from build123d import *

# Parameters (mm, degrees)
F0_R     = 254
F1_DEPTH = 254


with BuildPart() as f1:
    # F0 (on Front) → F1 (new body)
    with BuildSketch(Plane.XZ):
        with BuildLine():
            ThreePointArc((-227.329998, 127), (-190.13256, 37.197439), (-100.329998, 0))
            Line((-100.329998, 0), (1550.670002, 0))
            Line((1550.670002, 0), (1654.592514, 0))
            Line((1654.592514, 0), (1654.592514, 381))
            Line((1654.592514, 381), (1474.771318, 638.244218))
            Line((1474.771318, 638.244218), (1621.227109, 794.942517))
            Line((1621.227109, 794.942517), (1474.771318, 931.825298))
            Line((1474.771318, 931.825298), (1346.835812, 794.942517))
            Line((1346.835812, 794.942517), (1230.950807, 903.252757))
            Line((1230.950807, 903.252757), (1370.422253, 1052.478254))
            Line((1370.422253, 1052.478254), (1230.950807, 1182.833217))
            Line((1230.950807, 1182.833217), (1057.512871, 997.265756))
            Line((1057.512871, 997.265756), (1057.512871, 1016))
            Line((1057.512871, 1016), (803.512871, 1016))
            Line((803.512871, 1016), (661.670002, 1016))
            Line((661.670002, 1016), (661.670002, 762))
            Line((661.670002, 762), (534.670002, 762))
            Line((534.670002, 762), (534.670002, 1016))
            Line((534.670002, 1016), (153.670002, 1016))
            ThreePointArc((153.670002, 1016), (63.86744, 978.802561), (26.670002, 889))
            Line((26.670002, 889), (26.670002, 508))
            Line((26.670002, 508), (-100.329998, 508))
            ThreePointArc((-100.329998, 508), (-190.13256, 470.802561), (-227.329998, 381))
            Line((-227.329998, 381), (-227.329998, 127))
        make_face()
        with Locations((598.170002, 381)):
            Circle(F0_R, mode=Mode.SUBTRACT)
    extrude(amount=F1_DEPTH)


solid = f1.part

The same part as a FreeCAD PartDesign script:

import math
import FreeCAD as App
import Part
import Sketcher

V = App.Vector
Q = App.Units.Quantity

doc = App.newDocument("Part")
body = doc.addObject("PartDesign::Body", "Body")

# Sketch on XZ plane
sketch1 = doc.addObject("Sketcher::SketchObject", "Sketch")
body.addObject(sketch1)
sketch1.AttachmentSupport = (doc.XZ_Plane, [""])
sketch1.MapMode = "FlatFace"
sketch1.addGeometry(Part.ArcOfCircle(Part.Circle(V(-100, 127, 0), V(0, 0, 1), 127), math.radians(180), math.radians(270)), False)
sketch1.addGeometry(Part.LineSegment(V(-100, 0, 0), V(1655, 0, 0)), False)
sketch1.addGeometry(Part.LineSegment(V(1655, 0, 0), V(1655, 381, 0)), False)
sketch1.addGeometry(Part.LineSegment(V(1655, 381, 0), V(1475, 638, 0)), False)
sketch1.addGeometry(Part.LineSegment(V(1475, 638, 0), V(1621, 795, 0)), False)
sketch1.addGeometry(Part.LineSegment(V(1621, 795, 0), V(1475, 932, 0)), False)
sketch1.addGeometry(Part.LineSegment(V(1475, 932, 0), V(1347, 795, 0)), False)
sketch1.addGeometry(Part.LineSegment(V(1347, 795, 0), V(1231, 903, 0)), False)
sketch1.addGeometry(Part.LineSegment(V(1231, 903, 0), V(1370, 1052, 0)), False)
sketch1.addGeometry(Part.LineSegment(V(1370, 1052, 0), V(1231, 1183, 0)), False)
sketch1.addGeometry(Part.LineSegment(V(1231, 1183, 0), V(1058, 997, 0)), False)
sketch1.addGeometry(Part.LineSegment(V(1058, 997, 0), V(1058, 1016, 0)), False)
sketch1.addGeometry(Part.LineSegment(V(1058, 1016, 0), V(662, 1016, 0)), False)
sketch1.addGeometry(Part.LineSegment(V(662, 1016, 0), V(662, 762, 0)), False)
sketch1.addGeometry(Part.LineSegment(V(662, 762, 0), V(535, 762, 0)), False)
sketch1.addGeometry(Part.LineSegment(V(535, 762, 0), V(535, 1016, 0)), False)
sketch1.addGeometry(Part.LineSegment(V(535, 1016, 0), V(154, 1016, 0)), False)
sketch1.addGeometry(Part.ArcOfCircle(Part.Circle(V(154, 889, 0), V(0, 0, 1), 127), math.radians(90), math.radians(180)), False)
sketch1.addGeometry(Part.LineSegment(V(27, 889, 0), V(27, 508, 0)), False)
sketch1.addGeometry(Part.LineSegment(V(27, 508, 0), V(-100, 508, 0)), False)
sketch1.addGeometry(Part.ArcOfCircle(Part.Circle(V(-100, 381, 0), V(0, 0, 1), 127), math.radians(90), math.radians(180)), False)
sketch1.addGeometry(Part.LineSegment(V(-227, 381, 0), V(-227, 127, 0)), False)
sketch1.addGeometry(Part.Circle(V(598, 381, 0), V(0, 0, 1), 254), False)
sketch1.addConstraint(Sketcher.Constraint("Tangent", 0, 2, 1, 1))
sketch1.addConstraint(Sketcher.Constraint("Coincident", 1, 2, 2, 1))
sketch1.addConstraint(Sketcher.Constraint("Coincident", 2, 2, 3, 1))
sketch1.addConstraint(Sketcher.Constraint("Coincident", 3, 2, 4, 1))
sketch1.addConstraint(Sketcher.Constraint("Coincident", 4, 2, 5, 1))
sketch1.addConstraint(Sketcher.Constraint("Coincident", 5, 2, 6, 1))
sketch1.addConstraint(Sketcher.Constraint("Coincident", 6, 2, 7, 1))
sketch1.addConstraint(Sketcher.Constraint("Coincident", 7, 2, 8, 1))
sketch1.addConstraint(Sketcher.Constraint("Coincident", 8, 2, 9, 1))
sketch1.addConstraint(Sketcher.Constraint("Coincident", 9, 2, 10, 1))
sketch1.addConstraint(Sketcher.Constraint("Coincident", 10, 2, 11, 1))
sketch1.addConstraint(Sketcher.Constraint("Coincident", 11, 2, 12, 1))
sketch1.addConstraint(Sketcher.Constraint("Coincident", 12, 2, 13, 1))
sketch1.addConstraint(Sketcher.Constraint("Coincident", 13, 2, 14, 1))
sketch1.addConstraint(Sketcher.Constraint("Coincident", 14, 2, 15, 1))
sketch1.addConstraint(Sketcher.Constraint("Coincident", 15, 2, 16, 1))
sketch1.addConstraint(Sketcher.Constraint("Tangent", 16, 2, 17, 1))
sketch1.addConstraint(Sketcher.Constraint("Tangent", 17, 2, 18, 1))
sketch1.addConstraint(Sketcher.Constraint("Coincident", 18, 2, 19, 1))
sketch1.addConstraint(Sketcher.Constraint("Tangent", 19, 2, 20, 1))
sketch1.addConstraint(Sketcher.Constraint("Tangent", 20, 2, 21, 1))
sketch1.addConstraint(Sketcher.Constraint("Tangent", 21, 2, 0, 1))
sketch1.addConstraint(Sketcher.Constraint("Horizontal", 1))
sketch1.addConstraint(Sketcher.Constraint("Vertical", 2))
sketch1.addConstraint(Sketcher.Constraint("Vertical", 11))
sketch1.addConstraint(Sketcher.Constraint("Horizontal", 12))
sketch1.addConstraint(Sketcher.Constraint("Vertical", 13))
sketch1.addConstraint(Sketcher.Constraint("Horizontal", 14))
sketch1.addConstraint(Sketcher.Constraint("Vertical", 15))
sketch1.addConstraint(Sketcher.Constraint("Horizontal", 16))
sketch1.addConstraint(Sketcher.Constraint("Vertical", 18))
sketch1.addConstraint(Sketcher.Constraint("Horizontal", 19))
sketch1.addConstraint(Sketcher.Constraint("Vertical", 21))
sketch1.addConstraint(Sketcher.Constraint("Equal", 0, 17))
sketch1.addConstraint(Sketcher.Constraint("Equal", 17, 20))
sketch1.addConstraint(Sketcher.Constraint("PointOnObject", 0, 2, -1))
sketch1.addConstraint(Sketcher.Constraint("Perpendicular", 4, 5))
sketch1.addConstraint(Sketcher.Constraint("Perpendicular", 5, 6))
sketch1.addConstraint(Sketcher.Constraint("Perpendicular", 6, 7))
sketch1.addConstraint(Sketcher.Constraint("Perpendicular", 7, 8))
sketch1.addConstraint(Sketcher.Constraint("Perpendicular", 8, 9))
sketch1.addConstraint(Sketcher.Constraint("Perpendicular", 9, 10))
sketch1.addConstraint(Sketcher.Constraint("Horizontal", 20, 3, 22, 3))
sketch1.addConstraint(Sketcher.Constraint("Horizontal", 22, 3, 2, 2))
sketch1.addConstraint(Sketcher.Constraint("Horizontal", 4, 2, 6, 2))
sketch1.addConstraint(Sketcher.Constraint("Horizontal", 12, 2, 15, 2))
sketch1.addConstraint(Sketcher.Constraint("Vertical", 3, 2, 5, 2))
sketch1.addConstraint(Sketcher.Constraint("Vertical", 7, 2, 9, 2))
sketch1.addConstraint(Sketcher.Constraint("Equal", 14, 19))
sketch1.addConstraint(Sketcher.Constraint("Equal", 16, 2))
sketch1.addConstraint(Sketcher.Constraint("Equal", 2, 18))
sketch1.addConstraint(Sketcher.Constraint("Equal", 15, 21))
sketch1.addConstraint(Sketcher.Constraint("Diameter", 22, Q("20 in")))
sketch1.addConstraint(Sketcher.Constraint("Radius", 0, Q("5 in")))
sketch1.addConstraint(Sketcher.Constraint("DistanceX", 14, 2, 14, 1, Q("5 in")))
sketch1.addConstraint(Sketcher.Constraint("DistanceX", 16, 2, 16, 1, Q("15 in")))
sketch1.addConstraint(Sketcher.Constraint("Distance", 10, Q("10 in")))
sketch1.addConstraint(Sketcher.Constraint("DistanceX", 17, 3, 22, 3, Q("17.5 in")))
sketch1.addConstraint(Sketcher.Constraint("DistanceX", 0, 3, -1, 1, Q("3.95 in")))
sketch1.addConstraint(Sketcher.Constraint("DistanceX", 6, 2, 8, 2, Q("0.9286 in")))
sketch1.addConstraint(Sketcher.Constraint("DistanceX", 1, 1, 1, 2, 1754.922512))
sketch1.addConstraint(Sketcher.Constraint("DistanceX", 12, 2, 12, 1, 395.842869))
sketch1.addConstraint(Sketcher.Constraint("DistanceY", -1, 1, 5, 2, 931.825298))
sketch1.addConstraint(Sketcher.Constraint("DistanceY", 3, 2, 4, 2, 156.698299))
sketch1.addConstraint(Sketcher.Constraint("DistanceX", 6, 2, 2, 2, 307.756702))
sketch1.addConstraint(Sketcher.Constraint("DistanceX", 7, 2, 4, 2, 390.276302))
pad1 = doc.addObject("PartDesign::Pad", "Pad")
body.addObject(pad1)
pad1.Profile = sketch1
pad1.Length = Q("10 in")

doc.recompute()
